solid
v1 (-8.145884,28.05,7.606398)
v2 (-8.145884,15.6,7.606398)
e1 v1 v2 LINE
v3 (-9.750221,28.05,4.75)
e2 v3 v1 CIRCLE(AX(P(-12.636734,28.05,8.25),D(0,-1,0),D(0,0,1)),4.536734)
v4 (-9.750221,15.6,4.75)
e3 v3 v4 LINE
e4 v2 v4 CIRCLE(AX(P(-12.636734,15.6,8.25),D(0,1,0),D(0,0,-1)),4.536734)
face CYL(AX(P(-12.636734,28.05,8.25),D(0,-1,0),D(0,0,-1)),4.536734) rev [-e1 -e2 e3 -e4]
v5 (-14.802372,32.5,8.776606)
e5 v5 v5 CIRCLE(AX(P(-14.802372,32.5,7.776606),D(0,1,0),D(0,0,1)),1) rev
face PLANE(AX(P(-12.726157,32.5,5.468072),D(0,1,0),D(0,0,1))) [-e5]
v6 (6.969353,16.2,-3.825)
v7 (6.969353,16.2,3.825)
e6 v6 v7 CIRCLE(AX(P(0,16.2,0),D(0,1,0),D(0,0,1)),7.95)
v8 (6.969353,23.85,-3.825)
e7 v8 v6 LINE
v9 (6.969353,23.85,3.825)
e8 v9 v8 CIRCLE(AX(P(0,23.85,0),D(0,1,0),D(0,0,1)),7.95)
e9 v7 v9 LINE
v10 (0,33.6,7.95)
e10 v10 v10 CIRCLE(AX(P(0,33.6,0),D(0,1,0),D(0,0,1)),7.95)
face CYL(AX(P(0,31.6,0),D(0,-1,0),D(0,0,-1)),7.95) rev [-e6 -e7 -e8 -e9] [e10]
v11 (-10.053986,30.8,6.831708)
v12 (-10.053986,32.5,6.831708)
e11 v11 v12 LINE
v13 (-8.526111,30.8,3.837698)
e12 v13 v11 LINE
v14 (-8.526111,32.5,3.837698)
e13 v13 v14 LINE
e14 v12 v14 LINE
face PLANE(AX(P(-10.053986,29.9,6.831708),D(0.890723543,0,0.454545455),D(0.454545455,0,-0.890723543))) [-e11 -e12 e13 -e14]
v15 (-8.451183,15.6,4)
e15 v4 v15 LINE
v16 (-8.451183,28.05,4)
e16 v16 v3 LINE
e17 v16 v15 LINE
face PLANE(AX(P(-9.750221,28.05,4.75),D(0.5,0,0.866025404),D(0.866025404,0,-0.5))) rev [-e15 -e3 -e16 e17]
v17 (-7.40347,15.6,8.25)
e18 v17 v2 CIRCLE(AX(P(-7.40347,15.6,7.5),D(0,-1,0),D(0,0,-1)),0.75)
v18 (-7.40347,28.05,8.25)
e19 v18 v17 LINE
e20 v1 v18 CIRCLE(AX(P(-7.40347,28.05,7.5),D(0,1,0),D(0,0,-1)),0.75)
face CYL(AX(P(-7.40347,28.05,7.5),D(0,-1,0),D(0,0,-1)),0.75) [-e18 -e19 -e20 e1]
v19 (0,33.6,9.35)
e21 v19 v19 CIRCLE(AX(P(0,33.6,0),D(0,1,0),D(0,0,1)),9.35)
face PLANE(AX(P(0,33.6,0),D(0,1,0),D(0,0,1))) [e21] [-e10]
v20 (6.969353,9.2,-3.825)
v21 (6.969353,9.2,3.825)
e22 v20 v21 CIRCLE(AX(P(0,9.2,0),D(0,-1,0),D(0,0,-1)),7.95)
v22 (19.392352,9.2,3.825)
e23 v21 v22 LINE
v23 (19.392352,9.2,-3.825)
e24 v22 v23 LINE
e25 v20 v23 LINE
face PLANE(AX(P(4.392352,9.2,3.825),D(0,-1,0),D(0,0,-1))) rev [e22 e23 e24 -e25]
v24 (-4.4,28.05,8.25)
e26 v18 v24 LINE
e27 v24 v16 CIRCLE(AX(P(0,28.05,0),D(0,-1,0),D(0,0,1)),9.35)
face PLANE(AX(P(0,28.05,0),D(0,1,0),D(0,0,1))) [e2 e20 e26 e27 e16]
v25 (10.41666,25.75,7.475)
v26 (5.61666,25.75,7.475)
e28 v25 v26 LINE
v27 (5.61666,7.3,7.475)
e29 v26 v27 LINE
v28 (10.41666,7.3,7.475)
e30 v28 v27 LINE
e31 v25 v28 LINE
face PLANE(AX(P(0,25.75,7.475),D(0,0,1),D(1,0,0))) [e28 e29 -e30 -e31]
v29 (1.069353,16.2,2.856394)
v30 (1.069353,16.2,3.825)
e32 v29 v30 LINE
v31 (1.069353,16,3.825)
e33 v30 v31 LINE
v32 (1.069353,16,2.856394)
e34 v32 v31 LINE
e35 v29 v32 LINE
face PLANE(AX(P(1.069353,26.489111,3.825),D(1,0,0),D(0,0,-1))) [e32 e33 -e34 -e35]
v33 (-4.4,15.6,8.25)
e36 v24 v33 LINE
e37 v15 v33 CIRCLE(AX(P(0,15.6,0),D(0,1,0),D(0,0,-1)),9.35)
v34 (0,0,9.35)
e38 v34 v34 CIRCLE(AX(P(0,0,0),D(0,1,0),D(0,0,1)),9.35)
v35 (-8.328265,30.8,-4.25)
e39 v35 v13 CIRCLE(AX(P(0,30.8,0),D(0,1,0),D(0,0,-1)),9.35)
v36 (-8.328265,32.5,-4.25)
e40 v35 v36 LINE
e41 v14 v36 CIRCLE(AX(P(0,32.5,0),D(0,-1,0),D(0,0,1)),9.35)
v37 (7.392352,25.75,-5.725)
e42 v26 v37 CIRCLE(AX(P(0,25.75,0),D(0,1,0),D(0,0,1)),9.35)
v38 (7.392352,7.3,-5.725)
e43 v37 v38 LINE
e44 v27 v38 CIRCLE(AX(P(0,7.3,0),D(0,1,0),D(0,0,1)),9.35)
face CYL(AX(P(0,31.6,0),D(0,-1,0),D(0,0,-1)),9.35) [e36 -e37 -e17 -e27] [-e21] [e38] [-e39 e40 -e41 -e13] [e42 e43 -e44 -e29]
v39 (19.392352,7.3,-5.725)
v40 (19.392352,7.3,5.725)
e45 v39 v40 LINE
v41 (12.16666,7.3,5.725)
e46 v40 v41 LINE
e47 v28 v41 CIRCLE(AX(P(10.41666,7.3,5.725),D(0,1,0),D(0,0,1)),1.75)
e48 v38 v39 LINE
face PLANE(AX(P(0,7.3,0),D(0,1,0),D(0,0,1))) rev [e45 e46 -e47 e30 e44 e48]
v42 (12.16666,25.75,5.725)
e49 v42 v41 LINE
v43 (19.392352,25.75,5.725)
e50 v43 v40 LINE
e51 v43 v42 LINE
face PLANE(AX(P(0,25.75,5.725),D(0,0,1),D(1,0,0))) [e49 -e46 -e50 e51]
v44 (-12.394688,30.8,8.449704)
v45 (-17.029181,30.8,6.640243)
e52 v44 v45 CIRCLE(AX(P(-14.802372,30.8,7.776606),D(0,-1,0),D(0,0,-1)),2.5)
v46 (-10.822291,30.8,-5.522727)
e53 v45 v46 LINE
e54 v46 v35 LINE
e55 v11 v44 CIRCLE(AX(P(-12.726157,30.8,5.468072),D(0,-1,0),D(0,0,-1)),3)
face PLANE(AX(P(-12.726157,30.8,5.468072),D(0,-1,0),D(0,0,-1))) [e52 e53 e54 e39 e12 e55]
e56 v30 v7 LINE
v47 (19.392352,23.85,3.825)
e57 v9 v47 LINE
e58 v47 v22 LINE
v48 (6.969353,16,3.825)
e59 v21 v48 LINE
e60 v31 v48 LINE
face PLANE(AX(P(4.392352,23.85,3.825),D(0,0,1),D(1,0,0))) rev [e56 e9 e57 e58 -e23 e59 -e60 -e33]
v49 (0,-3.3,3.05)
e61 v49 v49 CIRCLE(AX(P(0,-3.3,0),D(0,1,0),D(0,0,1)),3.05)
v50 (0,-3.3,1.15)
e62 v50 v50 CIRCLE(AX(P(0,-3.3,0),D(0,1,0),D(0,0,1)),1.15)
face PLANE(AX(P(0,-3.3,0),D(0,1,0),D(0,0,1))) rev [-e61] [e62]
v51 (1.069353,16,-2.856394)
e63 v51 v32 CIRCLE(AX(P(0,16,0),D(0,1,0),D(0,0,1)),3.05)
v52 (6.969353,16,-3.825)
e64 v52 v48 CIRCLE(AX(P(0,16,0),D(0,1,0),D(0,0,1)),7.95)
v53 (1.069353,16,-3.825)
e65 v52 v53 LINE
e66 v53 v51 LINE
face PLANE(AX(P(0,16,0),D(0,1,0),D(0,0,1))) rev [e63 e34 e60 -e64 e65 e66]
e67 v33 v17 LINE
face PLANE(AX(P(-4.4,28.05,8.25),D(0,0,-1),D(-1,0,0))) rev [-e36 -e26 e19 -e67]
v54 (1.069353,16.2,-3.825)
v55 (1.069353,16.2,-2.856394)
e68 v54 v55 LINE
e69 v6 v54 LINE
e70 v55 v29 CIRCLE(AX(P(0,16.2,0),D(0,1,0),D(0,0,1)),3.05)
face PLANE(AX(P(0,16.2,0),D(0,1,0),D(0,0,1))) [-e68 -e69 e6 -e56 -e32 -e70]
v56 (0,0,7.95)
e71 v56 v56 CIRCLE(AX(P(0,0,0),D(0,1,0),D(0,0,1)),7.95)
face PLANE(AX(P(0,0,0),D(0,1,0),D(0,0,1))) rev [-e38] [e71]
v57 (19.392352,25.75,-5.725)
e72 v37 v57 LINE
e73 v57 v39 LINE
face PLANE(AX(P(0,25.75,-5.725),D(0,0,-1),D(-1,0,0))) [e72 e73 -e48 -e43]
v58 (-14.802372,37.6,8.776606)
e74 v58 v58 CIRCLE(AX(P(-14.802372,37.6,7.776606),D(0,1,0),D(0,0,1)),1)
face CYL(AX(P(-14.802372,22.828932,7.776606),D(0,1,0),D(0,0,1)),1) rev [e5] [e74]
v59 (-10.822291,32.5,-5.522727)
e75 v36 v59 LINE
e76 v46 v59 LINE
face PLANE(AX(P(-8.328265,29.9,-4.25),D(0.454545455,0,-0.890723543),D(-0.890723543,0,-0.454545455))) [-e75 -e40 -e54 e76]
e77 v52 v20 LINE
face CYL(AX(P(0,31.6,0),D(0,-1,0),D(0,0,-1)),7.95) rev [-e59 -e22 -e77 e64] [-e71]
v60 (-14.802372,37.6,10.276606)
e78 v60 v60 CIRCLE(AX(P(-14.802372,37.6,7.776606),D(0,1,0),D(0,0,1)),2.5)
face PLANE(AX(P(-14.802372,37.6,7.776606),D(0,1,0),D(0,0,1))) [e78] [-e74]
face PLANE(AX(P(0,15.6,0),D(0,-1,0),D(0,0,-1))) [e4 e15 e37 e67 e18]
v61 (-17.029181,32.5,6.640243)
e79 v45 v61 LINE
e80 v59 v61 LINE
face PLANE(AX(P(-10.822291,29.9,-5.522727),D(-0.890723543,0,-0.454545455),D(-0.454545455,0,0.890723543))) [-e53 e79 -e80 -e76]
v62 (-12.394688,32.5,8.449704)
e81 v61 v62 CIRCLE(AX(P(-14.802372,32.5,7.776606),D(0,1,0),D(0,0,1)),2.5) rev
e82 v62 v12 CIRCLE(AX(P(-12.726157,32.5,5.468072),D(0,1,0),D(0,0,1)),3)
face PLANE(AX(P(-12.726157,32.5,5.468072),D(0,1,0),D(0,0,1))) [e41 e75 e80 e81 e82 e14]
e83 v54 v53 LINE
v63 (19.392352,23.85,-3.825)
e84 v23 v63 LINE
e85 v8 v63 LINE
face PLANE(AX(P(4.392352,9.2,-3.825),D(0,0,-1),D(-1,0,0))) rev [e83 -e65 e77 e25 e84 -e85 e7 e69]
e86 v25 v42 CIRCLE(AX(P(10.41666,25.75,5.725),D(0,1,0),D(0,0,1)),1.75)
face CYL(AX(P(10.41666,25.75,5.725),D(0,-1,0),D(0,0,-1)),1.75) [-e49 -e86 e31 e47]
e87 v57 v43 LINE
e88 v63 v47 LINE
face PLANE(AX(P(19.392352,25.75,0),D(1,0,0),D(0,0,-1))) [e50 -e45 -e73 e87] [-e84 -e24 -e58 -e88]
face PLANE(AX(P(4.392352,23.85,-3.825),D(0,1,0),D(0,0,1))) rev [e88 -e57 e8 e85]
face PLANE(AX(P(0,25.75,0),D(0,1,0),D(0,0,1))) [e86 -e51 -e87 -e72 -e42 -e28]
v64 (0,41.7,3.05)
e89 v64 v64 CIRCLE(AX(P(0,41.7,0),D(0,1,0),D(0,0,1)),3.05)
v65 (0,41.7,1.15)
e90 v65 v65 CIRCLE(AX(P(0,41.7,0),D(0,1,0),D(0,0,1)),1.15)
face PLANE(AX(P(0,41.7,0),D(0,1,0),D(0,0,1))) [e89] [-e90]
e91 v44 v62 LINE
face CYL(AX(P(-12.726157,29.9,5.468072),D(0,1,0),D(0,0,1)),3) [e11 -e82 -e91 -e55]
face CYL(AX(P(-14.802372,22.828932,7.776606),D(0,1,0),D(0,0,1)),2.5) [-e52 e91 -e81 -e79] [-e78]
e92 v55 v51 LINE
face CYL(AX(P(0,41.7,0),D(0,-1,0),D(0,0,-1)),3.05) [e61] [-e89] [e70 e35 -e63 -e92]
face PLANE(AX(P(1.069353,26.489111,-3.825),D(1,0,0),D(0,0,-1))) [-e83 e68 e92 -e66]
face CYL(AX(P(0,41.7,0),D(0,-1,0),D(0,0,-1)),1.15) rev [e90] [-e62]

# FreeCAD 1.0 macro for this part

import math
import FreeCAD as App
import Part
import Sketcher
from FreeCAD import Vector
Q = App.Units.Quantity

doc = App.newDocument("Part")
body = doc.addObject("PartDesign::Body", "Body")

# Sketch on XZ plane
sketch1 = doc.addObject("Sketcher::SketchObject", "Sketch")
body.addObject(sketch1)
sketch1.AttachmentSupport = (doc.XZ_Plane, [""])
sketch1.MapMode = "FlatFace"
sketch1.addGeometry(Part.Circle(Vector(0, 0, 0), Vector(0, 0, 1), 9.35), False)
sketch1.addGeometry(Part.Circle(Vector(0, 0, 0), Vector(0, 0, 1), 7.95), False)
sketch1.addConstraint(Sketcher.Constraint("Coincident", 0, 3, -1, 1))
sketch1.addConstraint(Sketcher.Constraint("Coincident", 1, 3, -1, 1))
sketch1.addConstraint(Sketcher.Constraint("Diameter", 0, 18.7))
sketch1.addConstraint(Sketcher.Constraint("Diameter", 1, 15.9))
pad1 = doc.addObject("PartDesign::Pad", "Pad")
body.addObject(pad1)
pad1.Profile = sketch1
pad1.Length = 31.6
pad1.Reversed = True

# Sketch on XZ plane
sketch2 = doc.addObject("Sketcher::SketchObject", "Sketch001")
body.addObject(sketch2)
sketch2.AttachmentSupport = (doc.XZ_Plane, [""])
sketch2.MapMode = "FlatFace"
sketch2.AttachmentOffset = App.Placement(Vector(0, 0, -7.3), App.Rotation())
sketch2.addGeometry(Part.LineSegment(Vector(19.392352, -5.725, 0), Vector(7.392352, -5.725, 0)), False)
sketch2.addGeometry(Part.ArcOfCircle(Part.Circle(Vector(0, 0, 0), Vector(0, 0, 1), 9.35), math.radians(-37.755956), math.radians(53.079067)), False)
sketch2.addGeometry(Part.LineSegment(Vector(5.61666, 7.475, 0), Vector(10.41666, 7.475, 0)), False)
sketch2.addGeometry(Part.ArcOfCircle(Part.Circle(Vector(10.41666, 5.725, 0), Vector(0, 0, 1), 1.75), math.radians(0), math.radians(90)), False)
sketch2.addGeometry(Part.LineSegment(Vector(12.16666, 5.725, 0), Vector(19.392352, 5.725, 0)), False)
sketch2.addGeometry(Part.LineSegment(Vector(19.392352, 5.725, 0), Vector(19.392352, -5.725, 0)), False)
sketch2.addConstraint(Sketcher.Constraint("Coincident", 0, 2, 1, 1))
sketch2.addConstraint(Sketcher.Constraint("Coincident", 1, 2, 2, 1))
sketch2.addConstraint(Sketcher.Constraint("Tangent", 2, 2, 3, 2))
sketch2.addConstraint(Sketcher.Constraint("Coincident", 3, 1, 4, 1))
sketch2.addConstraint(Sketcher.Constraint("Coincident", 4, 2, 5, 1))
sketch2.addConstraint(Sketcher.Constraint("Coincident", 5, 2, 0, 1))
sketch2.addConstraint(Sketcher.Constraint("Horizontal", 0))
sketch2.addConstraint(Sketcher.Constraint("Horizontal", 2))
sketch2.addConstraint(Sketcher.Constraint("Horizontal", 4))
sketch2.addConstraint(Sketcher.Constraint("Vertical", 5))
sketch2.addConstraint(Sketcher.Constraint("Coincident", 1, 3, -1, 1))
sketch2.addConstraint(Sketcher.Constraint("DistanceX", 0, 2, 0, 1, 12.0))
sketch2.addConstraint(Sketcher.Constraint("Radius", 1, 9.35))
sketch2.addConstraint(Sketcher.Constraint("Radius", 3, 1.75))
sketch2.addConstraint(Sketcher.Constraint("DistanceX", 2, 1, 2, 2, 4.8))
sketch2.addConstraint(Sketcher.Constraint("DistanceY", 5, 2, 5, 1, 11.45))
sketch2.addConstraint(Sketcher.Constraint("DistanceY", 0, 2, 1, 2, 13.2))
sketch2.addConstraint(Sketcher.Constraint("DistanceY", -1, 1, 3, 3, 5.725))
pad2 = doc.addObject("PartDesign::Pad", "Pad001")
body.addObject(pad2)
pad2.Profile = sketch2
pad2.Length = 18.45
pad2.Reversed = True

# Sketch on YZ plane
sketch3 = doc.addObject("Sketcher::SketchObject", "Sketch002")
body.addObject(sketch3)
sketch3.AttachmentSupport = (doc.YZ_Plane, [""])
sketch3.MapMode = "FlatFace"
sketch3.AttachmentOffset = App.Placement(Vector(0, 0, 19.392352), App.Rotation())
sketch3.addGeometry(Part.LineSegment(Vector(23.85, 3.825, 0), Vector(9.2, 3.825, 0)), False)
sketch3.addGeometry(Part.LineSegment(Vector(9.2, 3.825, 0), Vector(9.2, -3.825, 0)), False)
sketch3.addGeometry(Part.LineSegment(Vector(9.2, -3.825, 0), Vector(23.85, -3.825, 0)), False)
sketch3.addGeometry(Part.LineSegment(Vector(23.85, -3.825, 0), Vector(23.85, 3.825, 0)), False)
sketch3.addConstraint(Sketcher.Constraint("Coincident", 0, 2, 1, 1))
sketch3.addConstraint(Sketcher.Constraint("Coincident", 1, 2, 2, 1))
sketch3.addConstraint(Sketcher.Constraint("Coincident", 2, 2, 3, 1))
sketch3.addConstraint(Sketcher.Constraint("Coincident", 3, 2, 0, 1))
sketch3.addConstraint(Sketcher.Constraint("Horizontal", 0))
sketch3.addConstraint(Sketcher.Constraint("Vertical", 1))
sketch3.addConstraint(Sketcher.Constraint("Horizontal", 2))
sketch3.addConstraint(Sketcher.Constraint("Vertical", 3))
sketch3.addConstraint(Sketcher.Constraint("DistanceX", 0, 2, 0, 1, 14.65))
sketch3.addConstraint(Sketcher.Constraint("DistanceY", 1, 2, 1, 1, 7.65))
sketch3.addConstraint(Sketcher.Constraint("DistanceX", -1, 1, 0, 2, 9.2))
sketch3.addConstraint(Sketcher.Constraint("DistanceY", -1, 1, 0, 2, 3.825))
pocket1 = doc.addObject("PartDesign::Pocket", "Pocket")
body.addObject(pocket1)
pocket1.Profile = sketch3
pocket1.Length = 15
body2 = doc.addObject("PartDesign::Body", "Body001")

# Sketch on XZ plane
sketch4 = doc.addObject("Sketcher::SketchObject", "Sketch003")
body2.addObject(sketch4)
sketch4.AttachmentSupport = (doc.getObject("XZ_Plane001"), [""])
sketch4.MapMode = "FlatFace"
sketch4.AttachmentOffset = App.Placement(Vector(0, 0, 3.3), App.Rotation())
sketch4.addGeometry(Part.Circle(Vector(0, 0, 0), Vector(0, 0, 1), 3.05), False)
sketch4.addGeometry(Part.Circle(Vector(0, 0, 0), Vector(0, 0, 1), 1.15), False)
sketch4.addConstraint(Sketcher.Constraint("Coincident", 0, 3, -1, 1))
sketch4.addConstraint(Sketcher.Constraint("Coincident", 1, 3, -1, 1))
sketch4.addConstraint(Sketcher.Constraint("Diameter", 0, 6.1))
sketch4.addConstraint(Sketcher.Constraint("Diameter", 1, 2.3))
pad3 = doc.addObject("PartDesign::Pad", "Pad002")
body2.addObject(pad3)
pad3.Profile = sketch4
pad3.Length = 45
pad3.Reversed = True
body.AllowCompound = True
doc.recompute()

boolean = doc.addObject("PartDesign::Boolean", "Boolean")
body.addObject(boolean)
boolean.Type = "Fuse"
boolean.addObjects([body2])

# Sketch on XZ plane
sketch5 = doc.addObject("Sketcher::SketchObject", "Sketch004")
body.addObject(sketch5)
sketch5.AttachmentSupport = (doc.XZ_Plane, [""])
sketch5.MapMode = "FlatFace"
sketch5.AttachmentOffset = App.Placement(Vector(0, 0, -16), App.Rotation())
sketch5.addGeometry(Part.Circle(Vector(0, 0, 0), Vector(0, 0, 1), 7.95), False)
sketch5.addGeometry(Part.Circle(Vector(0, 0, 0), Vector(0, 0, 1), 3.05), False)
sketch5.addConstraint(Sketcher.Constraint("Coincident", 0, 3, -1, 1))
sketch5.addConstraint(Sketcher.Constraint("Coincident", 1, 3, -1, 1))
sketch5.addConstraint(Sketcher.Constraint("Diameter", 0, 15.9))
sketch5.addConstraint(Sketcher.Constraint("Diameter", 1, 6.1))
pad4 = doc.addObject("PartDesign::Pad", "Pad003")
body.addObject(pad4)
pad4.Profile = sketch5
pad4.Length = 0.2
pad4.Reversed = True

# Sketch on XZ plane
sketch6 = doc.addObject("Sketcher::SketchObject", "Sketch005")
body.addObject(sketch6)
sketch6.AttachmentSupport = (doc.XZ_Plane, [""])
sketch6.MapMode = "FlatFace"
sketch6.AttachmentOffset = App.Placement(Vector(0, 0, -16), App.Rotation())
sketch6.addGeometry(Part.LineSegment(Vector(6.969353, -3.825, 0), Vector(1.069353, -3.825, 0)), False)
sketch6.addGeometry(Part.LineSegment(Vector(1.069353, -3.825, 0), Vector(1.069353, -2.856394, 0)), False)
sketch6.addGeometry(Part.ArcOfCircle(Part.Circle(Vector(0, 0, 0), Vector(0, 0, 1), 3.05), math.radians(-69.475529), math.radians(69.475529)), False)
sketch6.addGeometry(Part.LineSegment(Vector(1.069353, 2.856394, 0), Vector(1.069353, 3.825, 0)), False)
sketch6.addGeometry(Part.LineSegment(Vector(1.069353, 3.825, 0), Vector(6.969353, 3.825, 0)), False)
sketch6.addGeometry(Part.ArcOfCircle(Part.Circle(Vector(0, 0, 0), Vector(0, 0, 1), 7.95), math.radians(-28.759366), math.radians(28.759366)), False)
sketch6.addConstraint(Sketcher.Constraint("Coincident", 0, 2, 1, 1))
sketch6.addConstraint(Sketcher.Constraint("Coincident", 1, 2, 2, 1))
sketch6.addConstraint(Sketcher.Constraint("Coincident", 2, 2, 3, 1))
sketch6.addConstraint(Sketcher.Constraint("Coincident", 3, 2, 4, 1))
sketch6.addConstraint(Sketcher.Constraint("Coincident", 4, 2, 5, 2))
sketch6.addConstraint(Sketcher.Constraint("Coincident", 5, 1, 0, 1))
sketch6.addConstraint(Sketcher.Constraint("Horizontal", 0))
sketch6.addConstraint(Sketcher.Constraint("Vertical", 1))
sketch6.addConstraint(Sketcher.Constraint("Vertical", 3))
sketch6.addConstraint(Sketcher.Constraint("Horizontal", 4))
sketch6.addConstraint(Sketcher.Constraint("Coincident", 2, 3, -1, 1))
sketch6.addConstraint(Sketcher.Constraint("Coincident", 5, 3, -1, 1))
sketch6.addConstraint(Sketcher.Constraint("Symmetric", 0, 2, 3, 2, -1))
sketch6.addConstraint(Sketcher.Constraint("Radius", 2, 3.05))
sketch6.addConstraint(Sketcher.Constraint("Radius", 5, 7.95))
sketch6.addConstraint(Sketcher.Constraint("DistanceX", 0, 2, 0, 1, 5.9))
sketch6.addConstraint(Sketcher.Constraint("DistanceY", 0, 2, 3, 2, 7.65))
pocket2 = doc.addObject("PartDesign::Pocket", "Pocket001")
body.addObject(pocket2)
pocket2.Profile = sketch6
pocket2.Length = 0.2

# Sketch on XZ plane
sketch7 = doc.addObject("Sketcher::SketchObject", "Sketch006")
body.addObject(sketch7)
sketch7.AttachmentSupport = (doc.XZ_Plane, [""])
sketch7.MapMode = "FlatFace"
sketch7.AttachmentOffset = App.Placement(Vector(0, 0, -20.6), App.Rotation())
sketch7.addGeometry(Part.LineSegment(Vector(-7.40347, 8.25, 0), Vector(-4.4, 8.25, 0)), False)
sketch7.addGeometry(Part.ArcOfCircle(Part.Circle(Vector(0, 0, 0), Vector(0, 0, 1), 9.35), math.radians(118.072487), math.radians(154.671502)), False)
sketch7.addGeometry(Part.LineSegment(Vector(-8.451183, 4, 0), Vector(-9.750221, 4.75, 0)), False)
sketch7.addGeometry(Part.ArcOfCircle(Part.Circle(Vector(-12.636734, 8.25, 0), Vector(0, 0, 1), 4.536734), math.radians(-50.486991), math.radians(-8.155753)), False)
sketch7.addGeometry(Part.ArcOfCircle(Part.Circle(Vector(-7.40347, 7.5, 0), Vector(0, 0, 1), 0.75), math.radians(90), math.radians(171.844247)), False)
sketch7.addConstraint(Sketcher.Constraint("Coincident", 0, 2, 1, 1))
sketch7.addConstraint(Sketcher.Constraint("Coincident", 1, 2, 2, 1))
sketch7.addConstraint(Sketcher.Constraint("Coincident", 2, 2, 3, 1))
sketch7.addConstraint(Sketcher.Constraint("Tangent", 3, 2, 4, 2))
sketch7.addConstraint(Sketcher.Constraint("Tangent", 4, 1, 0, 1))
sketch7.addConstraint(Sketcher.Constraint("Horizontal", 0))
sketch7.addConstraint(Sketcher.Constraint("Coincident", 1, 3, -1, 1))
sketch7.addConstraint(Sketcher.Constraint("Horizontal", 3, 3, 0, 2))
sketch7.addConstraint(Sketcher.Constraint("Angle", 2, Q("150 deg")))
sketch7.addConstraint(Sketcher.Constraint("Radius", 1, 9.35))
sketch7.addConstraint(Sketcher.Constraint("Radius", 4, 0.75))
sketch7.addConstraint(Sketcher.Constraint("DistanceY", -1, 1, 1, 2, 4.0))
sketch7.addConstraint(Sketcher.Constraint("Distance", 2, 1.5))
sketch7.addConstraint(Sketcher.Constraint("DistanceY", -1, 1, 4, 3, 7.5))
sketch7.addConstraint(Sketcher.Constraint("Radius", 3, 4.536734))
pad5 = doc.addObject("PartDesign::Pad", "Pad004")
body.addObject(pad5)
pad5.Profile = sketch7
pad5.Length = 7.45
pad5.Reversed = True

# Sketch on XZ plane
sketch8 = doc.addObject("Sketcher::SketchObject", "Sketch007")
body.addObject(sketch8)
sketch8.AttachmentSupport = (doc.XZ_Plane, [""])
sketch8.MapMode = "FlatFace"
sketch8.AttachmentOffset = App.Placement(Vector(0, 0, -20.6), App.Rotation())
sketch8.addGeometry(Part.LineSegment(Vector(-4.4, 8.25, 0), Vector(-7.40347, 8.25, 0)), False)
sketch8.addGeometry(Part.ArcOfCircle(Part.Circle(Vector(-7.40347, 7.5, 0), Vector(0, 0, 1), 0.75), math.radians(90), math.radians(171.844247)), False)
sketch8.addGeometry(Part.ArcOfCircle(Part.Circle(Vector(-12.636734, 8.25, 0), Vector(0, 0, 1), 4.536734), math.radians(-50.486991), math.radians(-8.155753)), False)
sketch8.addGeometry(Part.LineSegment(Vector(-9.750221, 4.75, 0), Vector(-8.451183, 4, 0)), False)
sketch8.addGeometry(Part.ArcOfCircle(Part.Circle(Vector(0, 0, 0), Vector(0, 0, 1), 9.35), math.radians(118.072487), math.radians(154.671502)), False)
sketch8.addConstraint(Sketcher.Constraint("Tangent", 0, 2, 1, 1))
sketch8.addConstraint(Sketcher.Constraint("Tangent", 1, 2, 2, 2))
sketch8.addConstraint(Sketcher.Constraint("Coincident", 2, 1, 3, 1))
sketch8.addConstraint(Sketcher.Constraint("Coincident", 3, 2, 4, 2))
sketch8.addConstraint(Sketcher.Constraint("Coincident", 4, 1, 0, 1))
sketch8.addConstraint(Sketcher.Constraint("Horizontal", 0))
sketch8.addConstraint(Sketcher.Constraint("Coincident", 4, 3, -1, 1))
sketch8.addConstraint(Sketcher.Constraint("Horizontal", 2, 3, 0, 2))
sketch8.addConstraint(Sketcher.Constraint("Angle", 3, Q("-30 deg")))
sketch8.addConstraint(Sketcher.Constraint("Radius", 1, 0.75))
sketch8.addConstraint(Sketcher.Constraint("Radius", 4, 9.35))
sketch8.addConstraint(Sketcher.Constraint("DistanceY", -1, 1, 3, 2, 4.0))
sketch8.addConstraint(Sketcher.Constraint("Distance", 3, 1.5))
sketch8.addConstraint(Sketcher.Constraint("DistanceY", -1, 1, 1, 3, 7.5))
sketch8.addConstraint(Sketcher.Constraint("Radius", 2, 4.536734))
pad6 = doc.addObject("PartDesign::Pad", "Pad005")
body.addObject(pad6)
pad6.Profile = sketch8
pad6.Length = 5
body3 = doc.addObject("PartDesign::Body", "Body002")

# Sketch on XZ plane
sketch9 = doc.addObject("Sketcher::SketchObject", "Sketch008")
body3.addObject(sketch9)
sketch9.AttachmentSupport = (doc.getObject("XZ_Plane002"), [""])
sketch9.MapMode = "FlatFace"
sketch9.AttachmentOffset = App.Placement(Vector(0, 0, -31.6), App.Rotation())
sketch9.addGeometry(Part.LineSegment(Vector(-8.328265, -4.25, 0), Vector(-10.822291, -5.522727, 0)), False)
sketch9.addGeometry(Part.LineSegment(Vector(-10.822291, -5.522727, 0), Vector(-17.029181, 6.640243, 0)), False)
sketch9.addGeometry(Part.LineSegment(Vector(-17.029181, 6.640243, 0), Vector(-14.089793, 8.140243, 0)), False)
sketch9.addGeometry(Part.ArcOfCircle(Part.Circle(Vector(-12.726157, 5.468072, 0), Vector(0, 0, 1), 3), math.radians(27.035692), math.radians(117.035692)), False)
sketch9.addGeometry(Part.LineSegment(Vector(-10.053986, 6.831708, 0), Vector(-8.526111, 3.837698, 0)), False)
sketch9.addGeometry(Part.ArcOfCircle(Part.Circle(Vector(0, 0, 0), Vector(0, 0, 1), 9.35), math.radians(155.766958), math.radians(207.035692)), False)
sketch9.addConstraint(Sketcher.Constraint("Coincident", 0, 2, 1, 1))
sketch9.addConstraint(Sketcher.Constraint("Coincident", 1, 2, 2, 1))
sketch9.addConstraint(Sketcher.Constraint("Tangent", 2, 2, 3, 2))
sketch9.addConstraint(Sketcher.Constraint("Tangent", 3, 1, 4, 1))
sketch9.addConstraint(Sketcher.Constraint("Coincident", 4, 2, 5, 1))
sketch9.addConstraint(Sketcher.Constraint("Coincident", 5, 2, 0, 1))
sketch9.addConstraint(Sketcher.Constraint("Coincident", 5, 3, -1, 1))
sketch9.addConstraint(Sketcher.Constraint("Perpendicular", 0, 1))
sketch9.addConstraint(Sketcher.Constraint("Perpendicular", 1, 2))
sketch9.addConstraint(Sketcher.Constraint("Perpendicular", 2, 4))
sketch9.addConstraint(Sketcher.Constraint("Radius", 3, 3.0))
sketch9.addConstraint(Sketcher.Constraint("Radius", 5, 9.35))
sketch9.addConstraint(Sketcher.Constraint("Distance", 0, 2.8))
sketch9.addConstraint(Sketcher.Constraint("Distance", 2, 3.3))
sketch9.addConstraint(Sketcher.Constraint("DistanceY", 1, 2, 2, 2, 1.5))
sketch9.addConstraint(Sketcher.Constraint("DistanceY", 5, 2, -1, 1, 4.25))
sketch9.addConstraint(Sketcher.Constraint("DistanceY", 0, 2, 3, 3, 10.990799))
pad7 = doc.addObject("PartDesign::Pad", "Pad006")
body3.addObject(pad7)
pad7.Profile = sketch9
pad7.Length = 1.7

# Sketch on XZ plane
sketch10 = doc.addObject("Sketcher::SketchObject", "Sketch009")
body3.addObject(sketch10)
sketch10.AttachmentSupport = (doc.getObject("XZ_Plane002"), [""])
sketch10.MapMode = "FlatFace"
sketch10.AttachmentOffset = App.Placement(Vector(0, 0, -29.9), App.Rotation())
sketch10.addGeometry(Part.Circle(Vector(-14.802372, 7.776606, 0), Vector(0, 0, 1), 2.5), False)
sketch10.addGeometry(Part.Circle(Vector(-14.802372, 7.776606, 0), Vector(0, 0, 1), 1), False)
sketch10.addConstraint(Sketcher.Constraint("Coincident", 1, 3, 0, 3))
sketch10.addConstraint(Sketcher.Constraint("Diameter", 0, 5.0))
sketch10.addConstraint(Sketcher.Constraint("Diameter", 1, 2.0))
sketch10.addConstraint(Sketcher.Constraint("DistanceX", 0, 3, -1, 1, 14.802372))
sketch10.addConstraint(Sketcher.Constraint("DistanceY", -1, 1, 0, 3, 7.776606))
pad8 = doc.addObject("PartDesign::Pad", "Pad007")
body3.addObject(pad8)
pad8.Profile = sketch10
pad8.Length = 7.7
pad8.Reversed = True

# Sketch on XZ plane
sketch11 = doc.addObject("Sketcher::SketchObject", "Sketch010")
body3.addObject(sketch11)
sketch11.AttachmentSupport = (doc.getObject("XZ_Plane002"), [""])
sketch11.MapMode = "FlatFace"
sketch11.AttachmentOffset = App.Placement(Vector(0, 0, -31.6), App.Rotation())
sketch11.addGeometry(Part.LineSegment(Vector(-14.089793, 8.140243, 0), Vector(-15.693095, 7.322061, 0)), False)
sketch11.addGeometry(Part.ArcOfCircle(Part.Circle(Vector(-14.802372, 7.776606, 0), Vector(0, 0, 1), 1), math.radians(26.653377), math.radians(207.035692)), False)
sketch11.addGeometry(Part.ArcOfCircle(Part.Circle(Vector(-12.726157, 5.468073, 0), Vector(0, 0, 1), 2.999999), math.radians(113.213563), math.radians(117.035692)), False)
sketch11.addConstraint(Sketcher.Constraint("Coincident", 0, 2, 1, 2))
sketch11.addConstraint(Sketcher.Constraint("Coincident", 1, 1, 2, 1))
sketch11.addConstraint(Sketcher.Constraint("Tangent", 2, 2, 0, 1))
sketch11.addConstraint(Sketcher.Constraint("Radius", 1, 1.0))
sketch11.addConstraint(Sketcher.Constraint("Radius", 2, 2.999999))
sketch11.addConstraint(Sketcher.Constraint("Distance", 0, 1.8))
sketch11.addConstraint(Sketcher.Constraint("DistanceY", -1, 1, 1, 1, 8.225198))
sketch11.addConstraint(Sketcher.Constraint("DistanceX", 1, 3, -1, 1, 14.802372))
sketch11.addConstraint(Sketcher.Constraint("DistanceY", -1, 1, 0, 2, 7.322061))
sketch11.addConstraint(Sketcher.Constraint("DistanceY", 1, 3, 1, 1, 0.448592))
pad9 = doc.addObject("PartDesign::Pad", "Pad008")
body3.addObject(pad9)
pad9.Profile = sketch11
pad9.Length = 1.7
doc.recompute()

boolean2 = doc.addObject("PartDesign::Boolean", "Boolean001")
body.addObject(boolean2)
boolean2.Type = "Fuse"
boolean2.addObjects([body3])

# Sketch on XZ plane
sketch12 = doc.addObject("Sketcher::SketchObject", "Sketch011")
body.addObject(sketch12)
sketch12.AttachmentSupport = (doc.XZ_Plane, [""])
sketch12.MapMode = "FlatFace"
sketch12.AttachmentOffset = App.Placement(Vector(0, 0, -31.6), App.Rotation())
sketch12.addGeometry(Part.Circle(Vector(0, 0, 0), Vector(0, 0, 1), 9.35), False)
sketch12.addGeometry(Part.Circle(Vector(0, 0, 0), Vector(0, 0, 1), 7.95), False)
sketch12.addConstraint(Sketcher.Constraint("Coincident", 0, 3, -1, 1))
sketch12.addConstraint(Sketcher.Constraint("Coincident", 1, 3, -1, 1))
sketch12.addConstraint(Sketcher.Constraint("Diameter", 0, 18.7))
sketch12.addConstraint(Sketcher.Constraint("Diameter", 1, 15.9))
pad10 = doc.addObject("PartDesign::Pad", "Pad009")
body.addObject(pad10)
pad10.Profile = sketch12
pad10.Length = 2
pad10.Reversed = True

# Sketch on XZ plane
sketch13 = doc.addObject("Sketcher::SketchObject", "Sketch012")
body.addObject(sketch13)
sketch13.AttachmentSupport = (doc.XZ_Plane, [""])
sketch13.MapMode = "FlatFace"
sketch13.AttachmentOffset = App.Placement(Vector(0, 0, -31.6), App.Rotation())
sketch13.addGeometry(Part.LineSegment(Vector(-10.053986, 6.831708, 0), Vector(-8.526111, 3.837698, 0)), False)
sketch13.addGeometry(Part.ArcOfCircle(Part.Circle(Vector(0, 0, 0), Vector(0, 0, 1), 9.35), math.radians(155.766958), math.radians(207.035692)), False)
sketch13.addGeometry(Part.LineSegment(Vector(-8.328265, -4.25, 0), Vector(-10.822291, -5.522727, 0)), False)
sketch13.addGeometry(Part.LineSegment(Vector(-10.822291, -5.522727, 0), Vector(-17.029181, 6.640243, 0)), False)
sketch13.addGeometry(Part.ArcOfCircle(Part.Circle(Vector(-14.802372, 7.776606, 0), Vector(0, 0, 1), 2.5), math.radians(15.618991), math.radians(207.035692)), False)
sketch13.addGeometry(Part.ArcOfCircle(Part.Circle(Vector(-12.726157, 5.468072, 0), Vector(0, 0, 1), 3), math.radians(27.035692), math.radians(83.656471)), False)
sketch13.addConstraint(Sketcher.Constraint("Coincident", 0, 2, 1, 1))
sketch13.addConstraint(Sketcher.Constraint("Coincident", 1, 2, 2, 1))
sketch13.addConstraint(Sketcher.Constraint("Coincident", 2, 2, 3, 1))
sketch13.addConstraint(Sketcher.Constraint("Tangent", 3, 2, 4, 2))
sketch13.addConstraint(Sketcher.Constraint("Coincident", 4, 1, 5, 2))
sketch13.addConstraint(Sketcher.Constraint("Tangent", 5, 1, 0, 1))
sketch13.addConstraint(Sketcher.Constraint("Coincident", 1, 3, -1, 1))
sketch13.addConstraint(Sketcher.Constraint("Perpendicular", 0, 2))
sketch13.addConstraint(Sketcher.Constraint("Perpendicular", 2, 3))
sketch13.addConstraint(Sketcher.Constraint("Radius", 5, 3.0))
sketch13.addConstraint(Sketcher.Constraint("Radius", 4, 2.5))
sketch13.addConstraint(Sketcher.Constraint("Radius", 1, 9.35))
sketch13.addConstraint(Sketcher.Constraint("Distance", 2, 2.8))
sketch13.addConstraint(Sketcher.Constraint("DistanceY", 1, 2, -1, 1, 4.25))
sketch13.addConstraint(Sketcher.Constraint("DistanceY", 2, 2, 5, 3, 10.990799))
sketch13.addConstraint(Sketcher.Constraint("DistanceX", 4, 3, -1, 1, 14.802372))
sketch13.addConstraint(Sketcher.Constraint("DistanceX", 0, 2, -1, 1, 8.526111))
sketch13.addConstraint(Sketcher.Constraint("DistanceX", 2, 2, -1, 1, 10.822291))
pad11 = doc.addObject("PartDesign::Pad", "Pad010")
body.addObject(pad11)
pad11.Profile = sketch13
pad11.Length = 1.7

# Sketch on XZ plane
sketch14 = doc.addObject("Sketcher::SketchObject", "Sketch013")
body.addObject(sketch14)
sketch14.AttachmentSupport = (doc.XZ_Plane, [""])
sketch14.MapMode = "FlatFace"
sketch14.AttachmentOffset = App.Placement(Vector(0, 0, -29.9), App.Rotation())
sketch14.addGeometry(Part.LineSegment(Vector(-17.029181, 6.640243, 0), Vector(-10.822291, -5.522727, 0)), False)
sketch14.addGeometry(Part.LineSegment(Vector(-10.822291, -5.522727, 0), Vector(-8.328265, -4.25, 0)), False)
sketch14.addGeometry(Part.ArcOfCircle(Part.Circle(Vector(0, 0, 0), Vector(0, 0, 1), 9.35), math.radians(155.766958), math.radians(207.035692)), False)
sketch14.addGeometry(Part.LineSegment(Vector(-8.526111, 3.837698, 0), Vector(-10.053986, 6.831708, 0)), False)
sketch14.addGeometry(Part.ArcOfCircle(Part.Circle(Vector(-12.726157, 5.468072, 0), Vector(0, 0, 1), 3), math.radians(27.035692), math.radians(83.656471)), False)
sketch14.addGeometry(Part.ArcOfCircle(Part.Circle(Vector(-14.802372, 7.776606, 0), Vector(0, 0, 1), 2.5), math.radians(15.618991), math.radians(207.035692)), False)
sketch14.addConstraint(Sketcher.Constraint("Coincident", 0, 2, 1, 1))
sketch14.addConstraint(Sketcher.Constraint("Coincident", 1, 2, 2, 2))
sketch14.addConstraint(Sketcher.Constraint("Coincident", 2, 1, 3, 1))
sketch14.addConstraint(Sketcher.Constraint("Tangent", 3, 2, 4, 1))
sketch14.addConstraint(Sketcher.Constraint("Coincident", 4, 2, 5, 1))
sketch14.addConstraint(Sketcher.Constraint("Tangent", 5, 2, 0, 1))
sketch14.addConstraint(Sketcher.Constraint("Coincident", 2, 3, -1, 1))
sketch14.addConstraint(Sketcher.Constraint("Perpendicular", 0, 1))
sketch14.addConstraint(Sketcher.Constraint("Perpendicular", 1, 3))
sketch14.addConstraint(Sketcher.Constraint("Radius", 4, 3.0))
sketch14.addConstraint(Sketcher.Constraint("Radius", 5, 2.5))
sketch14.addConstraint(Sketcher.Constraint("Radius", 2, 9.35))
sketch14.addConstraint(Sketcher.Constraint("Distance", 1, 2.8))
sketch14.addConstraint(Sketcher.Constraint("DistanceY", 1, 2, -1, 1, 4.25))
sketch14.addConstraint(Sketcher.Constraint("DistanceY", 0, 2, 4, 3, 10.990799))
sketch14.addConstraint(Sketcher.Constraint("DistanceX", 5, 3, -1, 1, 14.802372))
sketch14.addConstraint(Sketcher.Constraint("DistanceX", 0, 2, -1, 1, 10.822291))
sketch14.addConstraint(Sketcher.Constraint("DistanceX", 2, 1, -1, 1, 8.526111))
pocket3 = doc.addObject("PartDesign::Pocket", "Pocket002")
body.addObject(pocket3)
pocket3.Profile = sketch14
pocket3.Length = 0.9

# Sketch on XZ plane
sketch15 = doc.addObject("Sketcher::SketchObject", "Sketch014")
body.addObject(sketch15)
sketch15.AttachmentSupport = (doc.XZ_Plane, [""])
sketch15.MapMode = "FlatFace"
sketch15.AttachmentOffset = App.Placement(Vector(0, 0, -31.6), App.Rotation())
sketch15.addGeometry(Part.LineSegment(Vector(-10.053986, 6.831708, 0), Vector(-8.526111, 3.837698, 0)), False)
sketch15.addGeometry(Part.ArcOfCircle(Part.Circle(Vector(0, 0, 0), Vector(0, 0, 1), 9.35), math.radians(155.766958), math.radians(207.035692)), False)
sketch15.addGeometry(Part.LineSegment(Vector(-8.328265, -4.25, 0), Vector(-10.822291, -5.522727, 0)), False)
sketch15.addGeometry(Part.LineSegment(Vector(-10.822291, -5.522727, 0), Vector(-17.029181, 6.640243, 0)), False)
sketch15.addGeometry(Part.ArcOfCircle(Part.Circle(Vector(-14.802372, 7.776606, 0), Vector(0, 0, 1), 2.5), math.radians(15.618991), math.radians(207.035692)), False)
sketch15.addGeometry(Part.ArcOfCircle(Part.Circle(Vector(-12.726157, 5.468072, 0), Vector(0, 0, 1), 3), math.radians(27.035692), math.radians(83.656471)), False)
sketch15.addConstraint(Sketcher.Constraint("Coincident", 0, 2, 1, 1))
sketch15.addConstraint(Sketcher.Constraint("Coincident", 1, 2, 2, 1))
sketch15.addConstraint(Sketcher.Constraint("Coincident", 2, 2, 3, 1))
sketch15.addConstraint(Sketcher.Constraint("Tangent", 3, 2, 4, 2))
sketch15.addConstraint(Sketcher.Constraint("Coincident", 4, 1, 5, 2))
sketch15.addConstraint(Sketcher.Constraint("Tangent", 5, 1, 0, 1))
sketch15.addConstraint(Sketcher.Constraint("Coincident", 1, 3, -1, 1))
sketch15.addConstraint(Sketcher.Constraint("Perpendicular", 0, 2))
sketch15.addConstraint(Sketcher.Constraint("Perpendicular", 2, 3))
sketch15.addConstraint(Sketcher.Constraint("Radius", 5, 3.0))
sketch15.addConstraint(Sketcher.Constraint("Radius", 4, 2.5))
sketch15.addConstraint(Sketcher.Constraint("Radius", 1, 9.35))
sketch15.addConstraint(Sketcher.Constraint("Distance", 2, 2.8))
sketch15.addConstraint(Sketcher.Constraint("DistanceY", 1, 2, -1, 1, 4.25))
sketch15.addConstraint(Sketcher.Constraint("DistanceY", 2, 2, 5, 3, 10.990799))
sketch15.addConstraint(Sketcher.Constraint("DistanceX", 4, 3, -1, 1, 14.802372))
sketch15.addConstraint(Sketcher.Constraint("DistanceX", 0, 2, -1, 1, 8.526111))
sketch15.addConstraint(Sketcher.Constraint("DistanceX", 2, 2, -1, 1, 10.822291))
pad12 = doc.addObject("PartDesign::Pad", "Pad011")
body.addObject(pad12)
pad12.Profile = sketch15
pad12.Length = 0.9
pad12.Reversed = True

doc.recompute()
